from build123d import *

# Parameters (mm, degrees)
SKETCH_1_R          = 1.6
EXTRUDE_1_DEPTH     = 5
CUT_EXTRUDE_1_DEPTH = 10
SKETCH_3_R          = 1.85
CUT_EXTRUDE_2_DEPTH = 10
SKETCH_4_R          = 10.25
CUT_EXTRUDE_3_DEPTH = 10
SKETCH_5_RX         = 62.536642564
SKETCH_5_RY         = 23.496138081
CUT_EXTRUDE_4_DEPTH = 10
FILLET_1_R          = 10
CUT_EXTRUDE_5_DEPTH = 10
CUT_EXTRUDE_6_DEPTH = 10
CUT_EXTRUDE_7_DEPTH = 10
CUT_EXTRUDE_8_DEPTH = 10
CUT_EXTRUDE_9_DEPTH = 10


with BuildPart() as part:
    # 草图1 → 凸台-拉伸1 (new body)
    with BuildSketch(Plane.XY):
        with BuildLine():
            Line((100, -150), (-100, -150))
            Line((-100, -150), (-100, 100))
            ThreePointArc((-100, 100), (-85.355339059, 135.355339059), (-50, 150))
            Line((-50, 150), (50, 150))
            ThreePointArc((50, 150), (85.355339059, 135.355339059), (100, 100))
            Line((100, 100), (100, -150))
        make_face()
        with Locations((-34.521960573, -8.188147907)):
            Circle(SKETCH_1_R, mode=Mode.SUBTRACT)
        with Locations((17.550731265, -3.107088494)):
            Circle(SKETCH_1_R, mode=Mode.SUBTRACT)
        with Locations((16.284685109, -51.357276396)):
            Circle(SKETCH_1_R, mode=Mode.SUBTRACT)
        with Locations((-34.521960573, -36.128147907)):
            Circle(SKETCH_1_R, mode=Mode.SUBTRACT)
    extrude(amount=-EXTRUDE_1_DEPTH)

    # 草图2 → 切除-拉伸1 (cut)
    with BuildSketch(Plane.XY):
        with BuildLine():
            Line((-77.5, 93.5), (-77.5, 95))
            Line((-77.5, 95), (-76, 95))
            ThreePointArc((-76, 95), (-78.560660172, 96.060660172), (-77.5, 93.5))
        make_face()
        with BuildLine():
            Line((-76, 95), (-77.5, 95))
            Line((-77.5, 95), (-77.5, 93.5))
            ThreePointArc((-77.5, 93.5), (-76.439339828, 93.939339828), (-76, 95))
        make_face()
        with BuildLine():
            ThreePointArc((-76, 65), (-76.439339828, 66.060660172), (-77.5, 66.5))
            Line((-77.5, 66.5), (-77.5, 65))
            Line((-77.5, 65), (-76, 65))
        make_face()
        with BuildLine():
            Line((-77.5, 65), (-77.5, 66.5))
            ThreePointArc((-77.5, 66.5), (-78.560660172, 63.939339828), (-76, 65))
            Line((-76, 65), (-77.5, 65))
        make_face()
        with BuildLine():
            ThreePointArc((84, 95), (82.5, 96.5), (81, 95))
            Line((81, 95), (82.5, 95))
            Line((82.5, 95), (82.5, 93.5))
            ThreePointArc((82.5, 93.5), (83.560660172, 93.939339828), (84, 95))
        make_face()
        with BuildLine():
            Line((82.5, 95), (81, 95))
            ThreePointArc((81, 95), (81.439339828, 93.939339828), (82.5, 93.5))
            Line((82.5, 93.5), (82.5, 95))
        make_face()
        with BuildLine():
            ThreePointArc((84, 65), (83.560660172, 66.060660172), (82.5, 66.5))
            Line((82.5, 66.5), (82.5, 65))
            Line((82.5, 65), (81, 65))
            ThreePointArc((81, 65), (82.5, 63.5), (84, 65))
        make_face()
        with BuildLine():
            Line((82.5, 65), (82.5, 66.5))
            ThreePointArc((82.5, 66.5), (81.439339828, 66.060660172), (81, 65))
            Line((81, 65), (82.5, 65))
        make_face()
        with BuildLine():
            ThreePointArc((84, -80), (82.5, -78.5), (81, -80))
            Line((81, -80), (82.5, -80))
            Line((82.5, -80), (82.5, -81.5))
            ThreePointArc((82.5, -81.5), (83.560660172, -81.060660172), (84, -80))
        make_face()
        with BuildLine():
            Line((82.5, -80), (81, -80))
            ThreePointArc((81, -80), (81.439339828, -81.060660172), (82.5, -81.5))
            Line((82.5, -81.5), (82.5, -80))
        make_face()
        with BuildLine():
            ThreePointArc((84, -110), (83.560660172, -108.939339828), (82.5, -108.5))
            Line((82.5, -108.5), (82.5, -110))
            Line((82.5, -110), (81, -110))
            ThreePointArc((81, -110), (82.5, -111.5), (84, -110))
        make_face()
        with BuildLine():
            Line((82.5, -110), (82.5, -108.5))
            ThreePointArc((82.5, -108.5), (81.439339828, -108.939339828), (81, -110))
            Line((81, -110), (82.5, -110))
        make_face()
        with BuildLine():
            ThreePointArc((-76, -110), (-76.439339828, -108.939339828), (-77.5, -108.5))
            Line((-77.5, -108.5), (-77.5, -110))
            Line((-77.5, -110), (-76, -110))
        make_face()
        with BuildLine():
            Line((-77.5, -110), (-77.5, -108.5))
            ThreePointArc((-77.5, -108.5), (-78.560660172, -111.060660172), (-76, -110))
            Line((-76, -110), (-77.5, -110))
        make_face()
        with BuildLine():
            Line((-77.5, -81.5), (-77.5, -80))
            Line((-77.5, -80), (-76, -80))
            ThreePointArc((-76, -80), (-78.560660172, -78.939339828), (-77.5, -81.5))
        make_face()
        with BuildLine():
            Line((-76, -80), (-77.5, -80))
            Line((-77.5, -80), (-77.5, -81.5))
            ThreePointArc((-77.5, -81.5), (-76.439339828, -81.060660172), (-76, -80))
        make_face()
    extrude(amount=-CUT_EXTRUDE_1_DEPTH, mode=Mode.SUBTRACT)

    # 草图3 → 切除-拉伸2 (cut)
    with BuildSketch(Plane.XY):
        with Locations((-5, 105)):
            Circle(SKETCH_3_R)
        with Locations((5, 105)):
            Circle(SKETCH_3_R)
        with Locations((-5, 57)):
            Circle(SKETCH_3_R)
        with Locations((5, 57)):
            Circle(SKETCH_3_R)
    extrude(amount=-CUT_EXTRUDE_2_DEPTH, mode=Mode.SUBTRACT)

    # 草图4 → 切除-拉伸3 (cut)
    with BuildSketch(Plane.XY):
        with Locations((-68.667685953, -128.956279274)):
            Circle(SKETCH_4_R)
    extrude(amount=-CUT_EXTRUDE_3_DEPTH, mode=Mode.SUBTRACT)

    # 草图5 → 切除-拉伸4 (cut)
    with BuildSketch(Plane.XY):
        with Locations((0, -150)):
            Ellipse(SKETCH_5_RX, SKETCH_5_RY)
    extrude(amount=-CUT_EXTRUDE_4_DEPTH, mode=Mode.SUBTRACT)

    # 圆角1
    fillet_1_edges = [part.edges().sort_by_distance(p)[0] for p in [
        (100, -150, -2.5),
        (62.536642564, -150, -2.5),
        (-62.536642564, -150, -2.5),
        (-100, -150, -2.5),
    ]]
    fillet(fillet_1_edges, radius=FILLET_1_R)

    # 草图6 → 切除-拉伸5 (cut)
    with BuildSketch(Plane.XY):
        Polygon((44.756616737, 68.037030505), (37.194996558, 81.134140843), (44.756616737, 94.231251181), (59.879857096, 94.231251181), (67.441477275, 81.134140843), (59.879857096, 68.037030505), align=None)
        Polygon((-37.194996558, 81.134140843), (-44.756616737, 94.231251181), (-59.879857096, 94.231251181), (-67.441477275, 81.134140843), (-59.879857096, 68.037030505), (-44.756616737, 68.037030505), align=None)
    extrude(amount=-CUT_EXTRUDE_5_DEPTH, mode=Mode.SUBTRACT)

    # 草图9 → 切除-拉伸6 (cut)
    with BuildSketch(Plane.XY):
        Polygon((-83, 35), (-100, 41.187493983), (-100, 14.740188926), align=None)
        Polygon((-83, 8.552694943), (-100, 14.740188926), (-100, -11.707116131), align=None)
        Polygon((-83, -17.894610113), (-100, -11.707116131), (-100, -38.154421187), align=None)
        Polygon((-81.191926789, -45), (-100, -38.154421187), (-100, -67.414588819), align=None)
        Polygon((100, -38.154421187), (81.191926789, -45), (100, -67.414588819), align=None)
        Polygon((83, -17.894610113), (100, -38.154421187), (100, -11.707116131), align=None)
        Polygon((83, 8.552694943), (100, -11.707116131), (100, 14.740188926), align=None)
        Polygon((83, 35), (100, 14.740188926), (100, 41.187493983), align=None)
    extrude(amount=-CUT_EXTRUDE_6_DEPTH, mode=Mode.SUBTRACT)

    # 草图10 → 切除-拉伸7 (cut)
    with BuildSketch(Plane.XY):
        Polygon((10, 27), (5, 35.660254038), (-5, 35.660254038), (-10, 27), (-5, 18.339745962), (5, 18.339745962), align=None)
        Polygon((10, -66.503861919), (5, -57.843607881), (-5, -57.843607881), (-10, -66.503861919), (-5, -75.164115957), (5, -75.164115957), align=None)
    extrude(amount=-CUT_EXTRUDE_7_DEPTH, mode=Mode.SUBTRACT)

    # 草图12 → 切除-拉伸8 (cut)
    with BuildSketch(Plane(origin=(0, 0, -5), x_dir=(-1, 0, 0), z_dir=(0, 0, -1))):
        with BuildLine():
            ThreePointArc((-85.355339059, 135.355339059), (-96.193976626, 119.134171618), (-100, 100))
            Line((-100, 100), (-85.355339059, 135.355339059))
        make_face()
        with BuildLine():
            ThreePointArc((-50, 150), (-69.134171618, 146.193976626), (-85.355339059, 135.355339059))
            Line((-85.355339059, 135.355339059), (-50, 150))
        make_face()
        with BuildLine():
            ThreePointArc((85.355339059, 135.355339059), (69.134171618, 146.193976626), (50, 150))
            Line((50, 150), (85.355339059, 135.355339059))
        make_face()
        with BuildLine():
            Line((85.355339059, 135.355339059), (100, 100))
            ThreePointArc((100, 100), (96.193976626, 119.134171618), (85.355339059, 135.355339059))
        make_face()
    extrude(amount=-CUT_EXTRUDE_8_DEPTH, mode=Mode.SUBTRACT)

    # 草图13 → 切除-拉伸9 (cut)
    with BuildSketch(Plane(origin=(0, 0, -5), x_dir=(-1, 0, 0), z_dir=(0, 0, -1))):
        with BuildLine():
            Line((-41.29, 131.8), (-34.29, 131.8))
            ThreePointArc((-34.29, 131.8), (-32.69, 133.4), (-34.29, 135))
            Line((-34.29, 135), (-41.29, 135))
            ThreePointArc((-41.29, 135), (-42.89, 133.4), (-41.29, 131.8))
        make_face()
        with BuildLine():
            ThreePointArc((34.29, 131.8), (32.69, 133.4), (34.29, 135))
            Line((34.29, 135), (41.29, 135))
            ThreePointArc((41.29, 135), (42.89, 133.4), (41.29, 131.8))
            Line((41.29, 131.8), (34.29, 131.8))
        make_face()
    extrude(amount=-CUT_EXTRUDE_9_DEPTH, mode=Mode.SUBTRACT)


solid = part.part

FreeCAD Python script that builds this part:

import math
import FreeCAD as App
import Part
import Sketcher
from FreeCAD import Vector
Q = App.Units.Quantity


def edges_at(feature, points):
    """Names of the edges that pass closest to the given points."""
    edges = feature.Shape.Edges
    near = lambda p: min(range(len(edges)), key=lambda i: edges[i].distToShape(Part.Vertex(*p))[0])
    return sorted({f"Edge{near(p) + 1}" for p in points})


def add_polygon(sketch, points):
    """Adds a closed chain of lines whose ends are joined by coincident constraints."""
    first, n = sketch.GeometryCount, len(points)
    for a, b in zip(points, points[1:] + points[:1]):
        sketch.addGeometry(Part.LineSegment(App.Vector(*a, 0), App.Vector(*b, 0)), False)
    for i in range(n):
        sketch.addConstraint(Sketcher.Constraint("Coincident", first + i, 2, first + (i + 1) % n, 1))

doc = App.newDocument("Part")
body = doc.addObject("PartDesign::Body", "Body")

# Sketch on XY plane
sketch1 = doc.addObject("Sketcher::SketchObject", "Sketch")
body.addObject(sketch1)
sketch1.AttachmentSupport = (doc.XY_Plane, [""])
sketch1.MapMode = "FlatFace"
sketch1.addGeometry([
    Part.LineSegment(Vector(-100, -150, 0), Vector(100, -150, 0)),  # 0
    Part.LineSegment(Vector(100, -150, 0), Vector(100, 100, 0)),  # 1
    Part.ArcOfCircle(Part.Circle(Vector(50, 100, 0), Vector(0, 0, 1), 50), math.radians(0), math.radians(90)),  # 2
    Part.LineSegment(Vector(50, 150, 0), Vector(-50, 150, 0)),  # 3
    Part.ArcOfCircle(Part.Circle(Vector(-50, 100, 0), Vector(0, 0, 1), 50), math.radians(90), math.radians(180)),  # 4
    Part.LineSegment(Vector(-100, 100, 0), Vector(-100, -150, 0)),  # 5
    Part.Circle(Vector(16.3, -51.4, 0), Vector(0, 0, 1), 1.6),  # 6
    Part.Circle(Vector(-34.5, -36.1, 0), Vector(0, 0, 1), 1.6),  # 7
    Part.Circle(Vector(17.6, -3.1, 0), Vector(0, 0, 1), 1.6),  # 8
    Part.Circle(Vector(-34.5, -8.2, 0), Vector(0, 0, 1), 1.6),  # 9
], False)
sketch1.addConstraint([
    Sketcher.Constraint("Coincident", 0, 2, 1, 1),
    Sketcher.Constraint("Tangent", 1, 2, 2, 1),
    Sketcher.Constraint("Tangent", 2, 2, 3, 1),
    Sketcher.Constraint("Tangent", 3, 2, 4, 1),
    Sketcher.Constraint("Tangent", 4, 2, 5, 1),
    Sketcher.Constraint("Coincident", 5, 2, 0, 1),
    Sketcher.Constraint("Horizontal", 0),
    Sketcher.Constraint("Vertical", 1),
    Sketcher.Constraint("Horizontal", 3),
    Sketcher.Constraint("Vertical", 5),
    Sketcher.Constraint("Equal", 2, 4),
    Sketcher.Constraint("Equal", 6, 7),
    Sketcher.Constraint("Equal", 7, 8),
    Sketcher.Constraint("Equal", 8, 9),
    Sketcher.Constraint("Vertical", 7, 3, 9, 3),
    Sketcher.Constraint("Radius", 2, Q("50 mm")),
    Sketcher.Constraint("Diameter", 6, Q("3.2 mm")),
    Sketcher.Constraint("DistanceX", 0, 1, 0, 2, Q("200 mm")),
    Sketcher.Constraint("DistanceY", 1, 1, 1, 2, Q("250 mm")),
    Sketcher.Constraint("DistanceX", -1, 1, 2, 3, Q("50 mm")),
    Sketcher.Constraint("DistanceY", -1, 1, 2, 3, Q("100 mm")),
    Sketcher.Constraint("DistanceY", 7, 3, 9, 3, Q("27.94 mm")),
    Sketcher.Constraint("DistanceX", 7, 3, -1, 1, Q("34.521961 mm")),
    Sketcher.Constraint("DistanceX", -1, 1, 8, 3, Q("17.550731 mm")),
    Sketcher.Constraint("DistanceY", 8, 3, -1, 1, Q("3.107088 mm")),
    Sketcher.Constraint("DistanceY", 6, 3, 7, 3, Q("15.229128 mm")),
    Sketcher.Constraint("DistanceY", 7, 3, 8, 3, Q("33.021059 mm")),
    Sketcher.Constraint("DistanceX", -1, 1, 6, 3, Q("16.284685 mm")),
])
pad1 = doc.addObject("PartDesign::Pad", "Pad")
body.addObject(pad1)
pad1.Profile = sketch1
pad1.Length = 5
pad1.Reversed = True

# Sketch on XY plane
sketch2 = doc.addObject("Sketcher::SketchObject", "Sketch001")
body.addObject(sketch2)
sketch2.AttachmentSupport = (doc.XY_Plane, [""])
sketch2.MapMode = "FlatFace"
sketch2.addGeometry([
    Part.ArcOfCircle(Part.Circle(Vector(-77.5, 95, 0), Vector(0, 0, 1), 1.5), math.radians(0), math.radians(270)),  # 0
    Part.ArcOfCircle(Part.Circle(Vector(-77.5, 95, 0), Vector(0, 0, 1), 1.5), math.radians(-90), math.radians(0)),  # 1
    Part.ArcOfCircle(Part.Circle(Vector(-77.5, 65, 0), Vector(0, 0, 1), 1.5), math.radians(0), math.radians(90)),  # 2
    Part.ArcOfCircle(Part.Circle(Vector(-77.5, 65, 0), Vector(0, 0, 1), 1.5), math.radians(90), math.radians(360)),  # 3
    Part.ArcOfCircle(Part.Circle(Vector(82.5, 95, 0), Vector(0, 0, 1), 1.5), math.radians(0), math.radians(180)),  # 4
    Part.ArcOfCircle(Part.Circle(Vector(82.5, 95, 0), Vector(0, 0, 1), 1.5), math.radians(180), math.radians(270)),  # 5
    Part.ArcOfCircle(Part.Circle(Vector(82.5, 95, 0), Vector(0, 0, 1), 1.5), math.radians(-90), math.radians(0)),  # 6
    Part.ArcOfCircle(Part.Circle(Vector(82.5, 65, 0), Vector(0, 0, 1), 1.5), math.radians(0), math.radians(90)),  # 7
    Part.ArcOfCircle(Part.Circle(Vector(82.5, 65, 0), Vector(0, 0, 1), 1.5), math.radians(90), math.radians(180)),  # 8
    Part.ArcOfCircle(Part.Circle(Vector(82.5, 65, 0), Vector(0, 0, 1), 1.5), math.radians(180), math.radians(360)),  # 9
    Part.ArcOfCircle(Part.Circle(Vector(82.5, -80, 0), Vector(0, 0, 1), 1.5), math.radians(0), math.radians(180)),  # 10
    Part.ArcOfCircle(Part.Circle(Vector(82.5, -80, 0), Vector(0, 0, 1), 1.5), math.radians(180), math.radians(270)),  # 11
    Part.ArcOfCircle(Part.Circle(Vector(82.5, -80, 0), Vector(0, 0, 1), 1.5), math.radians(-90), math.radians(0)),  # 12
    Part.ArcOfCircle(Part.Circle(Vector(82.5, -110, 0), Vector(0, 0, 1), 1.5), math.radians(0), math.radians(90)),  # 13
    Part.ArcOfCircle(Part.Circle(Vector(82.5, -110, 0), Vector(0, 0, 1), 1.5), math.radians(90), math.radians(180)),  # 14
    Part.ArcOfCircle(Part.Circle(Vector(82.5, -110, 0), Vector(0, 0, 1), 1.5), math.radians(180), math.radians(360)),  # 15
    Part.ArcOfCircle(Part.Circle(Vector(-77.5, -110, 0), Vector(0, 0, 1), 1.5), math.radians(0), math.radians(90)),  # 16
    Part.ArcOfCircle(Part.Circle(Vector(-77.5, -110, 0), Vector(0, 0, 1), 1.5), math.radians(90), math.radians(360)),  # 17
    Part.ArcOfCircle(Part.Circle(Vector(-77.5, -80, 0), Vector(0, 0, 1), 1.5), math.radians(0), math.radians(270)),  # 18
    Part.ArcOfCircle(Part.Circle(Vector(-77.5, -80, 0), Vector(0, 0, 1), 1.5), math.radians(-90), math.radians(0)),  # 19
], False)
sketch2.addConstraint([
    Sketcher.Constraint("Tangent", 0, 1, 1, 2),
    Sketcher.Constraint("Coincident", 1, 1, 0, 2),
    Sketcher.Constraint("Tangent", 2, 1, 3, 2),
    Sketcher.Constraint("Coincident", 3, 1, 2, 2),
    Sketcher.Constraint("Tangent", 4, 2, 5, 1),
    Sketcher.Constraint("Tangent", 5, 2, 6, 1),
    Sketcher.Constraint("Tangent", 6, 2, 4, 1),
    Sketcher.Constraint("Tangent", 7, 2, 8, 1),
    Sketcher.Constraint("Tangent", 8, 2, 9, 1),
    Sketcher.Constraint("Tangent", 9, 2, 7, 1),
    Sketcher.Constraint("Tangent", 10, 2, 11, 1),
    Sketcher.Constraint("Tangent", 11, 2, 12, 1),
    Sketcher.Constraint("Tangent", 12, 2, 10, 1),
    Sketcher.Constraint("Tangent", 13, 2, 14, 1),
    Sketcher.Constraint("Tangent", 14, 2, 15, 1),
    Sketcher.Constraint("Tangent", 15, 2, 13, 1),
    Sketcher.Constraint("Tangent", 16, 1, 17, 2),
    Sketcher.Constraint("Coincident", 17, 1, 16, 2),
    Sketcher.Constraint("Tangent", 18, 1, 19, 2),
    Sketcher.Constraint("Coincident", 19, 1, 18, 2),
    Sketcher.Constraint("Equal", 1, 2),
    Sketcher.Constraint("Equal", 3, 4),
    Sketcher.Constraint("Equal", 6, 7),
    Sketcher.Constraint("Equal", 9, 10),
    Sketcher.Constraint("Equal", 12, 13),
    Sketcher.Constraint("Equal", 15, 16),
    Sketcher.Constraint("Equal", 17, 18),
    Sketcher.Constraint("Horizontal", 1, 3, 4, 3),
    Sketcher.Constraint("Horizontal", 3, 3, 7, 3),
    Sketcher.Constraint("Horizontal", 15, 3, 16, 3),
    Sketcher.Constraint("Horizontal", 12, 3, 18, 3),
    Sketcher.Constraint("Horizontal", 6, 3, 0, 1),
    Sketcher.Constraint("Horizontal", 9, 3, 2, 1),
    Sketcher.Constraint("Horizontal", 0, 1, 4, 2),
    Sketcher.Constraint("Horizontal", 4, 2, 6, 2),
    Sketcher.Constraint("Horizontal", 2, 1, 8, 2),
    Sketcher.Constraint("Horizontal", 8, 2, 9, 2),
    Sketcher.Constraint("Horizontal", 19, 3, 10, 2),
    Sketcher.Constraint("Horizontal", 10, 2, 12, 2),
    Sketcher.Constraint("Horizontal", 17, 3, 14, 2),
    Sketcher.Constraint("Horizontal", 14, 2, 15, 2),
    Sketcher.Constraint("Horizontal", 15, 2, 16, 1),
    Sketcher.Constraint("Horizontal", 12, 2, 18, 1),
    Sketcher.Constraint("Vertical", 1, 3, 2, 3),
    Sketcher.Constraint("Vertical", 6, 3, 7, 3),
    Sketcher.Constraint("Vertical", 9, 3, 10, 3),
    Sketcher.Constraint("Vertical", 12, 3, 13, 3),
    Sketcher.Constraint("Vertical", 3, 3, 16, 3),
    Sketcher.Constraint("Vertical", 17, 3, 18, 3),
    Sketcher.Constraint("Vertical", 19, 3, 1, 1),
    Sketcher.Constraint("Vertical", 1, 1, 3, 1),
    Sketcher.Constraint("Vertical", 15, 3, 5, 2),
    Sketcher.Constraint("Vertical", 5, 2, 7, 2),
    Sketcher.Constraint("Vertical", 7, 2, 11, 2),
    Sketcher.Constraint("Vertical", 11, 2, 13, 2),
    Sketcher.Constraint("Vertical", 3, 1, 17, 1),
    Sketcher.Constraint("Vertical", 17, 1, 19, 1),
    Sketcher.Constraint("Radius", 0, Q("1.5 mm")),
    Sketcher.Constraint("DistanceY", -1, 1, 0, 3, Q("95 mm")),
    Sketcher.Constraint("DistanceY", -1, 1, 2, 3, Q("65 mm")),
    Sketcher.Constraint("DistanceY", 10, 3, -1, 1, Q("80 mm")),
    Sketcher.Constraint("DistanceY", 13, 3, -1, 1, Q("110 mm")),
    Sketcher.Constraint("DistanceX", 0, 1, -1, 1, Q("76 mm")),
    Sketcher.Constraint("DistanceX", -1, 1, 4, 2, Q("81 mm")),
])
pocket1 = doc.addObject("PartDesign::Pocket", "Pocket")
body.addObject(pocket1)
pocket1.Profile = sketch2
pocket1.Length = 10

# Sketch on XY plane
sketch3 = doc.addObject("Sketcher::SketchObject", "Sketch002")
body.addObject(sketch3)
sketch3.AttachmentSupport = (doc.XY_Plane, [""])
sketch3.MapMode = "FlatFace"
sketch3.addGeometry([
    Part.Circle(Vector(-5, 105, 0), Vector(0, 0, 1), 1.9),
    Part.Circle(Vector(5, 105, 0), Vector(0, 0, 1), 1.9),
    Part.Circle(Vector(-5, 57, 0), Vector(0, 0, 1), 1.9),
    Part.Circle(Vector(5, 57, 0), Vector(0, 0, 1), 1.9),
], False)
sketch3.addConstraint([
    Sketcher.Constraint("Equal", 0, 1),
    Sketcher.Constraint("Equal", 1, 2),
    Sketcher.Constraint("Equal", 2, 3),
    Sketcher.Constraint("Symmetric", 0, 3, 1, 3, -2),
    Sketcher.Constraint("Symmetric", 2, 3, 3, 3, -2),
    Sketcher.Constraint("Vertical", 0, 3, 2, 3),
    Sketcher.Constraint("Diameter", 0, Q("3.7 mm")),
    Sketcher.Constraint("DistanceX", 0, 3, -1, 1, Q("5 mm")),
    Sketcher.Constraint("DistanceY", -1, 1, 0, 3, Q("105 mm")),
    Sketcher.Constraint("DistanceY", -1, 1, 2, 3, Q("57 mm")),
])
pocket2 = doc.addObject("PartDesign::Pocket", "Pocket001")
body.addObject(pocket2)
pocket2.Profile = sketch3
pocket2.Length = 10

# Sketch on XY plane
sketch4 = doc.addObject("Sketcher::SketchObject", "Sketch003")
body.addObject(sketch4)
sketch4.AttachmentSupport = (doc.XY_Plane, [""])
sketch4.MapMode = "FlatFace"
sketch4.addGeometry(Part.Circle(Vector(-69, -129, 0), Vector(0, 0, 1), 10), False)
sketch4.addConstraint([
    Sketcher.Constraint("Diameter", 0, Q("20.5 mm")),
    Sketcher.Constraint("DistanceY", 0, 3, -1, 1, Q("128.956279 mm")),
    Sketcher.Constraint("DistanceX", 0, 3, -1, 1, Q("68.667686 mm")),
])
pocket3 = doc.addObject("PartDesign::Pocket", "Pocket002")
body.addObject(pocket3)
pocket3.Profile = sketch4
pocket3.Length = 10

# Sketch on XY plane
sketch5 = doc.addObject("Sketcher::SketchObject", "Sketch004")
body.addObject(sketch5)
sketch5.AttachmentSupport = (doc.XY_Plane, [""])
sketch5.MapMode = "FlatFace"
sketch5.addGeometry(Part.Ellipse(Vector(62.536643, -150, 0), Vector(0, -126.503862, 0), Vector(0, -150, 0)), False)
sketch5.addConstraint(Sketcher.Constraint("Block", 0))
pocket4 = doc.addObject("PartDesign::Pocket", "Pocket003")
body.addObject(pocket4)
pocket4.Profile = sketch5
pocket4.Length = 10
doc.recompute()

fillet = doc.addObject("PartDesign::Fillet", "Fillet")
body.addObject(fillet)
fillet.Base = (pocket4, edges_at(pocket4, [
    (100, -150, -2.5),
    (62.537, -150, -2.5),
    (-62.537, -150, -2.5),
    (-100, -150, -2.5),
]))
fillet.Radius = 10

# Sketch on XY plane
sketch6 = doc.addObject("Sketcher::SketchObject", "Sketch005")
body.addObject(sketch6)
sketch6.AttachmentSupport = (doc.XY_Plane, [""])
sketch6.MapMode = "FlatFace"
add_polygon(sketch6, [(37, 81), (45, 68), (60, 68), (67, 81), (60, 94), (45, 94)])  # lines 0-5
add_polygon(sketch6, [(-37, 81), (-45, 94), (-60, 94), (-67, 81), (-60, 68), (-45, 68)])  # lines 6-11
sketch6.addConstraint([
    Sketcher.Constraint("Horizontal", 1),
    Sketcher.Constraint("Horizontal", 4),
    Sketcher.Constraint("Horizontal", 7),
    Sketcher.Constraint("Horizontal", 10),
    Sketcher.Constraint("Symmetric", 4, 2, 6, 2, -2),
    Sketcher.Constraint("Symmetric", 2, 2, 8, 2, -2),
    Sketcher.Constraint("Symmetric", 1, 2, 9, 2, -2),
    Sketcher.Constraint("Symmetric", 5, 2, 11, 2, -2),
    Sketcher.Constraint("Parallel", 0, 3),
    Sketcher.Constraint("Parallel", 2, 5),
    Sketcher.Constraint("Parallel", 3, 6),
    Sketcher.Constraint("Parallel", 5, 8),
    Sketcher.Constraint("Parallel", 8, 11),
    Sketcher.Constraint("Horizontal", 2, 2, 5, 2),
    Sketcher.Constraint("Vertical", 1, 2, 3, 2),
    Sketcher.Constraint("Angle", 0, Q("-60 deg")),
    Sketcher.Constraint("DistanceX", 1, 1, 1, 2, Q("15.12324 mm")),
    Sketcher.Constraint("Distance", 0, Q("15.12324 mm")),
    Sketcher.Constraint("DistanceY", -1, 1, 0, 2, Q("68.037031 mm")),
    Sketcher.Constraint("DistanceX", -1, 1, 0, 2, Q("44.756617 mm")),
])
pocket5 = doc.addObject("PartDesign::Pocket", "Pocket004")
body.addObject(pocket5)
pocket5.Profile = sketch6
pocket5.Length = 10

# Sketch on XY plane
sketch7 = doc.addObject("Sketcher::SketchObject", "Sketch006")
body.addObject(sketch7)
sketch7.AttachmentSupport = (doc.XY_Plane, [""])
sketch7.MapMode = "FlatFace"
add_polygon(sketch7, [(-83, 35), (-100, 41), (-100, 15)])  # lines 0-2
add_polygon(sketch7, [(-83, 9), (-100, 15), (-100, -12)])  # lines 3-5
add_polygon(sketch7, [(-83, -18), (-100, -12), (-100, -38)])  # lines 6-8
add_polygon(sketch7, [(-81, -45), (-100, -38), (-100, -67)])  # lines 9-11
add_polygon(sketch7, [(100, -38), (81, -45), (100, -67)])  # lines 12-14
add_polygon(sketch7, [(83, -18), (100, -38), (100, -12)])  # lines 15-17
add_polygon(sketch7, [(83, 9), (100, -12), (100, 15)])  # lines 18-20
add_polygon(sketch7, [(83, 35), (100, 15), (100, 41)])  # lines 21-23
sketch7.addConstraint([
    Sketcher.Constraint("Vertical", 1),
    Sketcher.Constraint("Vertical", 4),
    Sketcher.Constraint("Vertical", 7),
    Sketcher.Constraint("Vertical", 10),
    Sketcher.Constraint("Vertical", 14),
    Sketcher.Constraint("Vertical", 16),
    Sketcher.Constraint("Vertical", 19),
    Sketcher.Constraint("Vertical", 22),
    Sketcher.Constraint("Coincident", 3, 2, 1, 2),
    Sketcher.Constraint("Coincident", 6, 2, 4, 2),
    Sketcher.Constraint("Coincident", 9, 2, 7, 2),
    Sketcher.Constraint("Coincident", 15, 2, 14, 2),
    Sketcher.Constraint("Coincident", 18, 2, 16, 2),
    Sketcher.Constraint("Coincident", 21, 2, 19, 2),
    Sketcher.Constraint("Symmetric", 11, 2, 12, 2, -2),
    Sketcher.Constraint("Symmetric", 10, 2, 13, 2, -2),
    Sketcher.Constraint("Symmetric", 8, 2, 17, 2, -2),
    Sketcher.Constraint("Symmetric", 5, 2, 20, 2, -2),
    Sketcher.Constraint("Symmetric", 2, 2, 23, 2, -2),
    Sketcher.Constraint("Parallel", 0, 3),
    Sketcher.Constraint("Parallel", 2, 5),
    Sketcher.Constraint("Parallel", 3, 6),
    Sketcher.Constraint("Parallel", 5, 8),
    Sketcher.Constraint("Parallel", 6, 9),
    Sketcher.Constraint("Parallel", 8, 11),
    Sketcher.Constraint("Parallel", 13, 15),
    Sketcher.Constraint("Parallel", 12, 17),
    Sketcher.Constraint("Parallel", 17, 20),
    Sketcher.Constraint("Parallel", 20, 23),
    Sketcher.Constraint("Vertical", 2, 2, 5, 2),
    Sketcher.Constraint("Vertical", 5, 2, 8, 2),
    Sketcher.Constraint("Angle", 0, Q("160 deg")),
    Sketcher.Constraint("Angle", 2, Q("50 deg")),
    Sketcher.Constraint("DistanceX", 0, 2, -1, 1, Q("100 mm")),
    Sketcher.Constraint("DistanceX", 2, 2, -1, 1, Q("83 mm")),
    Sketcher.Constraint("DistanceY", -1, 1, 2, 2, Q("35 mm")),
    Sketcher.Constraint("DistanceY", 11, 2, -1, 1, Q("45 mm")),
])
pocket6 = doc.addObject("PartDesign::Pocket", "Pocket005")
body.addObject(pocket6)
pocket6.Profile = sketch7
pocket6.Length = 10

# Sketch on XY plane
sketch8 = doc.addObject("Sketcher::SketchObject", "Sketch007")
body.addObject(sketch8)
sketch8.AttachmentSupport = (doc.XY_Plane, [""])
sketch8.MapMode = "FlatFace"
add_polygon(sketch8, [(10, 27), (5, 36), (-5, 36), (-10, 27), (-5, 18), (5, 18)])  # lines 0-5
add_polygon(sketch8, [(10, -67), (5, -58), (-5, -58), (-10, -67), (-5, -75), (5, -75)])  # lines 6-11
sketch8.addConstraint([
    Sketcher.Constraint("Horizontal", 1),
    Sketcher.Constraint("Horizontal", 4),
    Sketcher.Constraint("Horizontal", 7),
    Sketcher.Constraint("Horizontal", 10),
    Sketcher.Constraint("Symmetric", 2, 2, 5, 2, -2),
    Sketcher.Constraint("Symmetric", 8, 2, 11, 2, -2),
    Sketcher.Constraint("Parallel", 0, 3),
    Sketcher.Constraint("Parallel", 2, 5),
    Sketcher.Constraint("Parallel", 3, 6),
    Sketcher.Constraint("Parallel", 5, 8),
    Sketcher.Constraint("Parallel", 6, 9),
    Sketcher.Constraint("Parallel", 8, 11),
    Sketcher.Constraint("Vertical", 1, 2, 3, 2),
    Sketcher.Constraint("Vertical", 0, 2, 4, 2),
    Sketcher.Constraint("Vertical", 4, 2, 6, 2),
    Sketcher.Constraint("Vertical", 2, 2, 8, 2),
    Sketcher.Constraint("Vertical", 7, 2, 9, 2),
    Sketcher.Constraint("DistanceX", 1, 2, 1, 1, Q("10 mm")),
    Sketcher.Constraint("Angle", 0, Q("120 deg")),
    Sketcher.Constraint("Distance", 0, Q("10 mm")),
    Sketcher.Constraint("DistanceY", -1, 1, 2, 2, Q("27 mm")),
    Sketcher.Constraint("DistanceY", 8, 2, -1, 1, Q("66.503862 mm")),
])
pocket7 = doc.addObject("PartDesign::Pocket", "Pocket006")
body.addObject(pocket7)
pocket7.Profile = sketch8
pocket7.Length = 10

# Sketch on XY plane
sketch9 = doc.addObject("Sketcher::SketchObject", "Sketch008")
body.addObject(sketch9)
sketch9.AttachmentSupport = (doc.XY_Plane, [""])
sketch9.MapMode = "FlatFace"
sketch9.AttachmentOffset = App.Placement(Vector(0, 0, -5), App.Rotation())
sketch9.addGeometry([
    Part.ArcOfCircle(Part.Circle(Vector(50, 100, 0), Vector(0, 0, 1), 50), math.radians(0), math.radians(45)),  # 0
    Part.LineSegment(Vector(100, 100, 0), Vector(85, 135, 0)),  # 1
    Part.ArcOfCircle(Part.Circle(Vector(50, 100, 0), Vector(0, 0, 1), 50), math.radians(45), math.radians(90)),  # 2
    Part.LineSegment(Vector(85, 135, 0), Vector(50, 150, 0)),  # 3
    Part.ArcOfCircle(Part.Circle(Vector(-50, 100, 0), Vector(0, 0, 1), 50), math.radians(90), math.radians(135)),  # 4
    Part.LineSegment(Vector(-50, 150, 0), Vector(-85, 135, 0)),  # 5
    Part.LineSegment(Vector(-85, 135, 0), Vector(-100, 100, 0)),  # 6
    Part.ArcOfCircle(Part.Circle(Vector(-50, 100, 0), Vector(0, 0, 1), 50), math.radians(135), math.radians(180)),  # 7
], False)
sketch9.addConstraint([
    Sketcher.Constraint("Coincident", 0, 1, 1, 1),
    Sketcher.Constraint("Coincident", 1, 2, 0, 2),
    Sketcher.Constraint("Coincident", 2, 1, 3, 1),
    Sketcher.Constraint("Coincident", 3, 2, 2, 2),
    Sketcher.Constraint("Coincident", 4, 1, 5, 1),
    Sketcher.Constraint("Coincident", 5, 2, 4, 2),
    Sketcher.Constraint("Coincident", 6, 1, 7, 1),
    Sketcher.Constraint("Coincident", 7, 2, 6, 2),
    Sketcher.Constraint("Coincident", 2, 3, 0, 3),
    Sketcher.Constraint("Coincident", 7, 3, 4, 3),
    Sketcher.Constraint("Coincident", 2, 1, 1, 2),
    Sketcher.Constraint("Coincident", 6, 1, 5, 2),
    Sketcher.Constraint("Equal", 2, 4),
    Sketcher.Constraint("Symmetric", 0, 3, 4, 3, -2),
    Sketcher.Constraint("Perpendicular", 1, 5),
    Sketcher.Constraint("Perpendicular", 3, 6),
    Sketcher.Constraint("Horizontal", 7, 3, 0, 1),
    Sketcher.Constraint("Horizontal", 2, 1, 5, 2),
    Sketcher.Constraint("Horizontal", 0, 1, 7, 2),
    Sketcher.Constraint("Vertical", 2, 3, 3, 2),
    Sketcher.Constraint("Radius", 0, Q("50 mm")),
    Sketcher.Constraint("DistanceX", -1, 1, 0, 3, Q("50 mm")),
    Sketcher.Constraint("DistanceY", -1, 1, 0, 3, Q("100 mm")),
])
pocket8 = doc.addObject("PartDesign::Pocket", "Pocket007")
body.addObject(pocket8)
pocket8.Profile = sketch9
pocket8.Length = 10
pocket8.Reversed = True

# Sketch on XY plane
sketch10 = doc.addObject("Sketcher::SketchObject", "Sketch009")
body.addObject(sketch10)
sketch10.AttachmentSupport = (doc.XY_Plane, [""])
sketch10.MapMode = "FlatFace"
sketch10.AttachmentOffset = App.Placement(Vector(0, 0, -5), App.Rotation())
sketch10.addGeometry([
    Part.LineSegment(Vector(41.3, 131.8, 0), Vector(34.3, 131.8, 0)),  # 0
    Part.ArcOfCircle(Part.Circle(Vector(34.3, 133.4, 0), Vector(0, 0, 1), 1.6), math.radians(90), math.radians(270)),  # 1
    Part.LineSegment(Vector(34.3, 135, 0), Vector(41.3, 135, 0)),  # 2
    Part.ArcOfCircle(Part.Circle(Vector(41.3, 133.4, 0), Vector(0, 0, 1), 1.6), math.radians(-90), math.radians(90)),  # 3
    Part.ArcOfCircle(Part.Circle(Vector(-34.3, 133.4, 0), Vector(0, 0, 1), 1.6), math.radians(-90), math.radians(90)),  # 4
    Part.LineSegment(Vector(-34.3, 131.8, 0), Vector(-41.3, 131.8, 0)),  # 5
    Part.ArcOfCircle(Part.Circle(Vector(-41.3, 133.4, 0), Vector(0, 0, 1), 1.6), math.radians(90), math.radians(270)),  # 6
    Part.LineSegment(Vector(-41.3, 135, 0), Vector(-34.3, 135, 0)),  # 7
], False)
sketch10.addConstraint([
    Sketcher.Constraint("Tangent", 0, 2, 1, 2),
    Sketcher.Constraint("Tangent", 1, 1, 2, 1),
    Sketcher.Constraint("Tangent", 2, 2, 3, 2),
    Sketcher.Constraint("Tangent", 3, 1, 0, 1),
    Sketcher.Constraint("Tangent", 4, 1, 5, 1),
    Sketcher.Constraint("Tangent", 5, 2, 6, 2),
    Sketcher.Constraint("Tangent", 6, 1, 7, 1),
    Sketcher.Constraint("Tangent", 7, 2, 4, 2),
    Sketcher.Constraint("Horizontal", 0),
    Sketcher.Constraint("Horizontal", 2),
    Sketcher.Constraint("Horizontal", 5),
    Sketcher.Constraint("Horizontal", 7),
    Sketcher.Constraint("Equal", 3, 4),
    Sketcher.Constraint("Symmetric", 1, 3, 4, 3, -2),
    Sketcher.Constraint("Equal", 2, 5),
    Sketcher.Constraint("Radius", 1, Q("1.6 mm")),
    Sketcher.Constraint("DistanceX", 0, 2, 0, 1, Q("7 mm")),
    Sketcher.Constraint("DistanceY", -1, 1, 1, 1, Q("135 mm")),
    Sketcher.Constraint("DistanceX", -1, 1, 1, 3, Q("34.29 mm")),
])
pocket9 = doc.addObject("PartDesign::Pocket", "Pocket008")
body.addObject(pocket9)
pocket9.Profile = sketch10
pocket9.Length = 10
pocket9.Reversed = True

doc.recompute()
